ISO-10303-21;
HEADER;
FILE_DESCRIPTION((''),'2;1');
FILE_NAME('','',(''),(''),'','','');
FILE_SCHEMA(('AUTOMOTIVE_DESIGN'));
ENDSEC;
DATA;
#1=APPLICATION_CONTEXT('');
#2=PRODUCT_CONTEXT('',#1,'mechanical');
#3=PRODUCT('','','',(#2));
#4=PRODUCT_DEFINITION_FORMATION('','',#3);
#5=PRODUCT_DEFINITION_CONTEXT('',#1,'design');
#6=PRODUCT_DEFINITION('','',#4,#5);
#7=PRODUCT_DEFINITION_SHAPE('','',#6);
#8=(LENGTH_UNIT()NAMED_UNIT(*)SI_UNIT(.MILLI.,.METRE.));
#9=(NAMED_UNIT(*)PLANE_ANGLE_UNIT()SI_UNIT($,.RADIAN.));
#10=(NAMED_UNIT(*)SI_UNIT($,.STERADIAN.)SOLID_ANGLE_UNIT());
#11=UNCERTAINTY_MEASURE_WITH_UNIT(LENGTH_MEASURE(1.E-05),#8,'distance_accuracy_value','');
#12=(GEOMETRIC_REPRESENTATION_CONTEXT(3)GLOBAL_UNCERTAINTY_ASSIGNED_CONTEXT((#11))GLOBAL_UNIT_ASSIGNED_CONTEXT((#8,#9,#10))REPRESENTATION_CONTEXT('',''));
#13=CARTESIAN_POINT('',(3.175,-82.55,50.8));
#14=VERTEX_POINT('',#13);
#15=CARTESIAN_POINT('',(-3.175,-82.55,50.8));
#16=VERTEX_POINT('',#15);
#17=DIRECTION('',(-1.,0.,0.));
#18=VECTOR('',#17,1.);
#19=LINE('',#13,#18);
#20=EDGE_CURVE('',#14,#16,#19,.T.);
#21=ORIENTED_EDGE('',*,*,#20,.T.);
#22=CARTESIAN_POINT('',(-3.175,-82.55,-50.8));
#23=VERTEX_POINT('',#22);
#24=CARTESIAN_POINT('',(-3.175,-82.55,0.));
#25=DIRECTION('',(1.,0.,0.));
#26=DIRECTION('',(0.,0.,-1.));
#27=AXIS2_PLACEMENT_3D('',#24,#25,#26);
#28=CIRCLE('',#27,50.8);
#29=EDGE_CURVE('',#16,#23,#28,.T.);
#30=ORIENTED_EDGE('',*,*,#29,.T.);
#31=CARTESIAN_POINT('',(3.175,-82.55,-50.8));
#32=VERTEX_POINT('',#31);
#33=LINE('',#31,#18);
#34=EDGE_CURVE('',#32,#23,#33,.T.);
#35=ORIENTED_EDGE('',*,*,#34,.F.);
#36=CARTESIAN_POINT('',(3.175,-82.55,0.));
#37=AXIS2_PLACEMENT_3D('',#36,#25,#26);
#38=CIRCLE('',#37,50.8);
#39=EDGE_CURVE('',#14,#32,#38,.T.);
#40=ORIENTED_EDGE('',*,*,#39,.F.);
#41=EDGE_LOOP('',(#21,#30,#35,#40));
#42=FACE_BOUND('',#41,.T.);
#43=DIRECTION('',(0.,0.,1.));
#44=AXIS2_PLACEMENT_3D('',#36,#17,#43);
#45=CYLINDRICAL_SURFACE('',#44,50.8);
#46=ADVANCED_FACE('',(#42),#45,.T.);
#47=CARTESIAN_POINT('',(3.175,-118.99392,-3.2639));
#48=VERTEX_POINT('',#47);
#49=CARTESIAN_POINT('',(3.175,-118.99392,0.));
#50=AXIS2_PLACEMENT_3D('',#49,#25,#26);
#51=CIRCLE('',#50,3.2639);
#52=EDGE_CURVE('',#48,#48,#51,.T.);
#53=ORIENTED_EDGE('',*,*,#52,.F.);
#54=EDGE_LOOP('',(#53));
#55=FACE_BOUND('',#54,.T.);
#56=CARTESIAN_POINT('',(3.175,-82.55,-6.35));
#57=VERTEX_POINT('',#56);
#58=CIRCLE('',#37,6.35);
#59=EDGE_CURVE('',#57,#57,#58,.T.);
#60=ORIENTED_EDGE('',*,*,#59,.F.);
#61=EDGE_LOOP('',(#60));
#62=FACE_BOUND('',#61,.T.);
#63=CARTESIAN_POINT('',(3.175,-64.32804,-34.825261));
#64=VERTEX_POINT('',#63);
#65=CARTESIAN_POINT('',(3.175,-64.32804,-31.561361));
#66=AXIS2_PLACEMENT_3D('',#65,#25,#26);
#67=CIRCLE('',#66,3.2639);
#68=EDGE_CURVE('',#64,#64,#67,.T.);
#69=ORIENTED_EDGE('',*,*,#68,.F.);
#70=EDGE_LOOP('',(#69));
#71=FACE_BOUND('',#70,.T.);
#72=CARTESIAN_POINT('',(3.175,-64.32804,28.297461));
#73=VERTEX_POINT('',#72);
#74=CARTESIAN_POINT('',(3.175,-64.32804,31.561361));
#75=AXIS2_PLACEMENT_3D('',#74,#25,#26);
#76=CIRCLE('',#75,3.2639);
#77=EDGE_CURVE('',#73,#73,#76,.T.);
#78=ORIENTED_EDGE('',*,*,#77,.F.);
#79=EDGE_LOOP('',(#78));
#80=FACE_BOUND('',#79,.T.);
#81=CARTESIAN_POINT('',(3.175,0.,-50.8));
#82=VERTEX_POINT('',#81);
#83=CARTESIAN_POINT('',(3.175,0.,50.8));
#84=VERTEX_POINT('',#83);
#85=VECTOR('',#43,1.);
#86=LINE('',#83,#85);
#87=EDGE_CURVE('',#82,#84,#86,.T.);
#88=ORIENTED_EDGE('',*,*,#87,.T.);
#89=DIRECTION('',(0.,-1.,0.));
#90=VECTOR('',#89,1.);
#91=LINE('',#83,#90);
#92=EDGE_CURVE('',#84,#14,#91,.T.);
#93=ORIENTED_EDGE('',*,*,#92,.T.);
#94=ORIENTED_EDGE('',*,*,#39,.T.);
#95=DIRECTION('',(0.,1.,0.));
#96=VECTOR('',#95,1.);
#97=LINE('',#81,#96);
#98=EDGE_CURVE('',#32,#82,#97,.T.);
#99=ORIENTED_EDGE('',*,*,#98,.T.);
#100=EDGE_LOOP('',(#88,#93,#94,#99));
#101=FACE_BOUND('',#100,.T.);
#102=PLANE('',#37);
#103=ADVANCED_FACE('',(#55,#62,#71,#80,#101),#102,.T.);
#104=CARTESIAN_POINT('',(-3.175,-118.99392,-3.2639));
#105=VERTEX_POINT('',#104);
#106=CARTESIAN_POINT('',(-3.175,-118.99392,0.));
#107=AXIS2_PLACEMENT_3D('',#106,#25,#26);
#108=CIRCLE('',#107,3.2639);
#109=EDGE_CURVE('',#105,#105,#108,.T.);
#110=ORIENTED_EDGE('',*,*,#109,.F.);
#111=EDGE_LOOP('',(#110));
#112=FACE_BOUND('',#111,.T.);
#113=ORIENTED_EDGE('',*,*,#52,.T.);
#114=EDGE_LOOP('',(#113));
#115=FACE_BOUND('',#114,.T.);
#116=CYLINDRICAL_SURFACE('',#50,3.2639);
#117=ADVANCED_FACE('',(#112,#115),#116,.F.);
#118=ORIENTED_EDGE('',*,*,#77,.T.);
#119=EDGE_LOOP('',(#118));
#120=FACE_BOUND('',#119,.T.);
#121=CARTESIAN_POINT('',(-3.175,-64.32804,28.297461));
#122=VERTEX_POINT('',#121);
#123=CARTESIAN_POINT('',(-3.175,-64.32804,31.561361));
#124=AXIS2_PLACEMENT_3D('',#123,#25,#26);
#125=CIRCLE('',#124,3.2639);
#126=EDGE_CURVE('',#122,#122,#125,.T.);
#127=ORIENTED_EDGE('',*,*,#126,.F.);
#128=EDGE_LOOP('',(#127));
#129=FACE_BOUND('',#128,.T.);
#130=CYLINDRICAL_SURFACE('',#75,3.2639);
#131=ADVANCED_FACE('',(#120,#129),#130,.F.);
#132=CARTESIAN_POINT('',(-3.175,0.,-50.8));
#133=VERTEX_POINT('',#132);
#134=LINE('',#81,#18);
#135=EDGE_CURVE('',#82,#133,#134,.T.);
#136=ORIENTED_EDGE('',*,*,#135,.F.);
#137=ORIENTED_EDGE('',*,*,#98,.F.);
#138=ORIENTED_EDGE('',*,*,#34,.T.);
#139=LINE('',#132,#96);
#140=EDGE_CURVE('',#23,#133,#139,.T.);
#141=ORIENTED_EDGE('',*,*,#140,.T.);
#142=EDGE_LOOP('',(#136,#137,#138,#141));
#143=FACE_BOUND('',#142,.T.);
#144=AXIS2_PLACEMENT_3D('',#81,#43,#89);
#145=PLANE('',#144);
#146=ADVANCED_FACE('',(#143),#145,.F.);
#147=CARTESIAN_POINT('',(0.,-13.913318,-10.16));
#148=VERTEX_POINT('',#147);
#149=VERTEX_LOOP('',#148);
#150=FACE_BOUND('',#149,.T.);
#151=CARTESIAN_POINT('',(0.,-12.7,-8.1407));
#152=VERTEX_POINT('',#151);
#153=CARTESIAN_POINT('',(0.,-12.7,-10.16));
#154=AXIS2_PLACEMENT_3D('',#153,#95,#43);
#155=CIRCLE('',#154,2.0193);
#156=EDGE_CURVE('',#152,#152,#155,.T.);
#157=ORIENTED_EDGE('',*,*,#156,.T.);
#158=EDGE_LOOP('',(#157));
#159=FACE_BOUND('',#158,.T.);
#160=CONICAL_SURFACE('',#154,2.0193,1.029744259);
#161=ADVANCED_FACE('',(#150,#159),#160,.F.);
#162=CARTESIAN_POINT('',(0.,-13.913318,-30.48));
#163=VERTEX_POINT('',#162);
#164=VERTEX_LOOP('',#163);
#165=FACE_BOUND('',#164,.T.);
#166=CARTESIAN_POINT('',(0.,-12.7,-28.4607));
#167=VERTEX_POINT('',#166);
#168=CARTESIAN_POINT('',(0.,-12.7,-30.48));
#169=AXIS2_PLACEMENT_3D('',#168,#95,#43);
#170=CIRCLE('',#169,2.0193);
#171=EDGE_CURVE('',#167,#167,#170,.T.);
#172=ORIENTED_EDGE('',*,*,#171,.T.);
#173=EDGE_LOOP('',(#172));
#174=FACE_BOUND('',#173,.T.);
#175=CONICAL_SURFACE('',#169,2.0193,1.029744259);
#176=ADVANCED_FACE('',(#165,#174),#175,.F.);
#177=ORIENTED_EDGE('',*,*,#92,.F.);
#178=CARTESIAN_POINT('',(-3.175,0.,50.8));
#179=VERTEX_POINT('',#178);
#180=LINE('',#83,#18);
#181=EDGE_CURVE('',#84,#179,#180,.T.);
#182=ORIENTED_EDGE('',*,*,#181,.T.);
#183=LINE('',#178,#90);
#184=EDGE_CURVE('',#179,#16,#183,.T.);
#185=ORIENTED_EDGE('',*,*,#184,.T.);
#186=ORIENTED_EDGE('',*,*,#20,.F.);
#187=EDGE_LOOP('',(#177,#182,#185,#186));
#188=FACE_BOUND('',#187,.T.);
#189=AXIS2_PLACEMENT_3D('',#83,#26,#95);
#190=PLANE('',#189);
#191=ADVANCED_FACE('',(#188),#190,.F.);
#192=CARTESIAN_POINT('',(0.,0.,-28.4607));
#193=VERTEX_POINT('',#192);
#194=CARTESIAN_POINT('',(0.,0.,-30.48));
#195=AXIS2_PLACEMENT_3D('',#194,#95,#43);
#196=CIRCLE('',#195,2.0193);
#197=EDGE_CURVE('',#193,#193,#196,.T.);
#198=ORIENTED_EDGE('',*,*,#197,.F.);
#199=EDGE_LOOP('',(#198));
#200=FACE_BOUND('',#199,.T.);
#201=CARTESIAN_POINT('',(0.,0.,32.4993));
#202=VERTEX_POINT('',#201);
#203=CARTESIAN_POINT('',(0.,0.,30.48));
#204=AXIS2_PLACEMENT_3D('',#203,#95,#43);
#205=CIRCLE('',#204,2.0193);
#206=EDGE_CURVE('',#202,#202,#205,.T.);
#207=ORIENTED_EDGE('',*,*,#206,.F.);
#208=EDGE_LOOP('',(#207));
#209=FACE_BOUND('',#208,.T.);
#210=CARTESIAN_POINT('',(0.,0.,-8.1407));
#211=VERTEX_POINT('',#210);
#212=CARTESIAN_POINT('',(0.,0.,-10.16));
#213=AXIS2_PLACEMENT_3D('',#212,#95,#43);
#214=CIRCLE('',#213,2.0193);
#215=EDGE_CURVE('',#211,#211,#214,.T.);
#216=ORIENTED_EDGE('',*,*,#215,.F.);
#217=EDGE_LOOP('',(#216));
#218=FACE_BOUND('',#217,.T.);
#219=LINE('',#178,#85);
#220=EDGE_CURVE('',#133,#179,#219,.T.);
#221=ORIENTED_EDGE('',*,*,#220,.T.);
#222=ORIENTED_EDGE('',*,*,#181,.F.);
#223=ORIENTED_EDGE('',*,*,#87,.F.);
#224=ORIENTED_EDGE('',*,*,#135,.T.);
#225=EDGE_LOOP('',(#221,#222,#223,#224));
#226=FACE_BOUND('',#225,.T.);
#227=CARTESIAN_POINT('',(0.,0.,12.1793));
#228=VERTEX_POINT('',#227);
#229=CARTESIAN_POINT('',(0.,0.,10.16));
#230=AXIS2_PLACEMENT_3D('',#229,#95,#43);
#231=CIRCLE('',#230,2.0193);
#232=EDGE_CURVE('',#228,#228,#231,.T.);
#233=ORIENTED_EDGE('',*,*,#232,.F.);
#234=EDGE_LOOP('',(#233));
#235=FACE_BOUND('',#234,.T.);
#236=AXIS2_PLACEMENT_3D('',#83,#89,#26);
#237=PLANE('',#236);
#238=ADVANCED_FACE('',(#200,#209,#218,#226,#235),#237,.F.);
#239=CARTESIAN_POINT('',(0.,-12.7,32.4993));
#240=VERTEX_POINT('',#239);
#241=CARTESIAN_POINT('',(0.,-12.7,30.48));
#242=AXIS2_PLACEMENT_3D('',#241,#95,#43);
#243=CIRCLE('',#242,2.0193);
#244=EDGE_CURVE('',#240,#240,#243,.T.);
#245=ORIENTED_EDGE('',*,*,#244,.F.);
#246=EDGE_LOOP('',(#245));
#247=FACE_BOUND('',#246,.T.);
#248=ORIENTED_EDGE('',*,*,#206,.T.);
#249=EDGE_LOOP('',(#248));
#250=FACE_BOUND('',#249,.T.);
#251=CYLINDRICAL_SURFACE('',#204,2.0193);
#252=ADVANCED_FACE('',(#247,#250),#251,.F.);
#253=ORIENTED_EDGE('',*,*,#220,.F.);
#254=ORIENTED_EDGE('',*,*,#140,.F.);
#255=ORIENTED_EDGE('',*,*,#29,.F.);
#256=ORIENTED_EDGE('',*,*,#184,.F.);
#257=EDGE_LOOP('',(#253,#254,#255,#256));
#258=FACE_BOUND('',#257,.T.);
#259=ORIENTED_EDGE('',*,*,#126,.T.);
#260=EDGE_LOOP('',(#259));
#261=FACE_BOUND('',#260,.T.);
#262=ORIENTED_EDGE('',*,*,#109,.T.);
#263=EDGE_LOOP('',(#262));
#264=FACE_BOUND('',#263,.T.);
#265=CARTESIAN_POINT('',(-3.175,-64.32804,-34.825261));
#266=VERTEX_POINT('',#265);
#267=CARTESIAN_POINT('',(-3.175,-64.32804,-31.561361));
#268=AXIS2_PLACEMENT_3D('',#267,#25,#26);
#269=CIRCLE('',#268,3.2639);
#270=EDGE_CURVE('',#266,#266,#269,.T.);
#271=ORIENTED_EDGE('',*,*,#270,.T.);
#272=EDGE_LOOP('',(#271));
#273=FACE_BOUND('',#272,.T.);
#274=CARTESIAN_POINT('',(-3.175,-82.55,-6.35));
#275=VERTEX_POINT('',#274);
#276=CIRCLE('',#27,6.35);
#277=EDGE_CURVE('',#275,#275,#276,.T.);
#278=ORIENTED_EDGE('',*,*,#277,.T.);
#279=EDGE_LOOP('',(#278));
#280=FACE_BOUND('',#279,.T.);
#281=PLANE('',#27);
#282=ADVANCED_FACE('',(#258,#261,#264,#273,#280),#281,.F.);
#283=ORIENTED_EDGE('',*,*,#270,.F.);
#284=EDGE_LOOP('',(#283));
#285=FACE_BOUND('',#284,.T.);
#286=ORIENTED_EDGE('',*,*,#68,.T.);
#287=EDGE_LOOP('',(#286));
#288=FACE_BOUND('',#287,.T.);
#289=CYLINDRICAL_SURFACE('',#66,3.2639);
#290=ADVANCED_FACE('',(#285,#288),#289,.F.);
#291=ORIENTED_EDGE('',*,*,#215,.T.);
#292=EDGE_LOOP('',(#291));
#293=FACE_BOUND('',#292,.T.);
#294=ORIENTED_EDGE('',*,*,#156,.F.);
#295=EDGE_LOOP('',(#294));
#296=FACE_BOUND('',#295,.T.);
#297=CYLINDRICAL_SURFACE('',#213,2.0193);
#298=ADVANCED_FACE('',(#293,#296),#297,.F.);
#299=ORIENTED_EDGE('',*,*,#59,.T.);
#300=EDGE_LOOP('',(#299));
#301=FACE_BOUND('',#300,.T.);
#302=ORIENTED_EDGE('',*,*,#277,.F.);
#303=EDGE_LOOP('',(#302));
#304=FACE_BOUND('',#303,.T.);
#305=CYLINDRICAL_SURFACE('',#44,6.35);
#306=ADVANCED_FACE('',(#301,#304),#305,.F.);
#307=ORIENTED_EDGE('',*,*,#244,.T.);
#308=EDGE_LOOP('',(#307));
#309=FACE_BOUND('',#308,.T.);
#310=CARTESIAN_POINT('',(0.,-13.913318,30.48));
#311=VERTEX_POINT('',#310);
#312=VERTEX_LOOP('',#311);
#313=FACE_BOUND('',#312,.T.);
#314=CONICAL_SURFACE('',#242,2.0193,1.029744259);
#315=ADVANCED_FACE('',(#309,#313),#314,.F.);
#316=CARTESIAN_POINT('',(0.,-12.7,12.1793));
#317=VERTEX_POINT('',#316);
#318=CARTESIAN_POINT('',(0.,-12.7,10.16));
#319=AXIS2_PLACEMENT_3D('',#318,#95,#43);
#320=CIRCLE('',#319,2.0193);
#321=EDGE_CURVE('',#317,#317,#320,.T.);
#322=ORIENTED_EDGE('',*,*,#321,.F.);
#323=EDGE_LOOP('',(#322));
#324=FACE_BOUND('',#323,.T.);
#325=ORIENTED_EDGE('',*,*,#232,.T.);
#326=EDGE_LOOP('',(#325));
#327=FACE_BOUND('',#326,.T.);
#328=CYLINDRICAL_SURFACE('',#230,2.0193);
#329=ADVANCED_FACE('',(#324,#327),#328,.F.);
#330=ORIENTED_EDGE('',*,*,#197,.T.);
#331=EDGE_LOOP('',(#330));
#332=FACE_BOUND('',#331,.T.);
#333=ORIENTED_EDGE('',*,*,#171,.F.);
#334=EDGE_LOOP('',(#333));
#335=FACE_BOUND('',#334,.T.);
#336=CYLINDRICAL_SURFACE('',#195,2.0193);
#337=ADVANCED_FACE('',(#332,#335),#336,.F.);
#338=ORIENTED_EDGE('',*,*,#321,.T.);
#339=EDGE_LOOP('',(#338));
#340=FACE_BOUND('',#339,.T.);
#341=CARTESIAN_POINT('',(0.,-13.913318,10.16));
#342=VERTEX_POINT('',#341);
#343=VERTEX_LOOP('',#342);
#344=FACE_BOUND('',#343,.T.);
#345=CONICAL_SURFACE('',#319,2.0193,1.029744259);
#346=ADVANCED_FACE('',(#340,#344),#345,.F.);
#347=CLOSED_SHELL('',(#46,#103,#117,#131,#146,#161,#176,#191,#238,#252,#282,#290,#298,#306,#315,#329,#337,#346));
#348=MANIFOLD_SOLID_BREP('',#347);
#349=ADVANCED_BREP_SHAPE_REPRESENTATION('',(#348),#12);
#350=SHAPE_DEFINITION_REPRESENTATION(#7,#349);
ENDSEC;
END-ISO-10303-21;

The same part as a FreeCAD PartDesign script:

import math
import FreeCAD as App
import Part
import Sketcher
Q = App.Units.Quantity

doc = App.newDocument("Part")
body = doc.addObject("PartDesign::Body", "Body")

# Sketch on YZ plane
sketch1 = body.newObject("Sketcher::SketchObject", "Sketch")
sketch1.AttachmentSupport = (doc.getObject("YZ_Plane"), [""])
sketch1.MapMode = "FlatFace"
sketch1.addGeometry(Part.LineSegment(App.Vector(0, -50.8, 0), App.Vector(0, 50.8, 0)), False)
sketch1.addGeometry(Part.LineSegment(App.Vector(0, 50.8, 0), App.Vector(-82.55, 50.8, 0)), False)
sketch1.addGeometry(Part.ArcOfCircle(Part.Circle(App.Vector(-82.55, 0, 0), App.Vector(0, 0, 1), 50.8), math.radians(90), math.radians(270)), False)
sketch1.addGeometry(Part.LineSegment(App.Vector(-82.55, -50.8, 0), App.Vector(0, -50.8, 0)), False)
sketch1.addGeometry(Part.Circle(App.Vector(-82.55, 0, 0), App.Vector(0, 0, 1), 6.35), False)
sketch1.addConstraint(Sketcher.Constraint("Coincident", 0, 2, 1, 1))
sketch1.addConstraint(Sketcher.Constraint("Tangent", 1, 2, 2, 1))
sketch1.addConstraint(Sketcher.Constraint("Tangent", 2, 2, 3, 1))
sketch1.addConstraint(Sketcher.Constraint("Coincident", 3, 2, 0, 1))
sketch1.addConstraint(Sketcher.Constraint("Vertical", 0))
sketch1.addConstraint(Sketcher.Constraint("Horizontal", 1))
sketch1.addConstraint(Sketcher.Constraint("Horizontal", 3))
sketch1.addConstraint(Sketcher.Constraint("Coincident", 4, 3, 2, 3))
sketch1.addConstraint(Sketcher.Constraint("Symmetric", 0, 2, 3, 2, -1, 1))
sketch1.addConstraint(Sketcher.Constraint("Radius", 2, Q("2 in")))
sketch1.addConstraint(Sketcher.Constraint("Diameter", 4, Q("0.5 in")))
sketch1.addConstraint(Sketcher.Constraint("DistanceX", 1, 2, 1, 1, Q("3.25 in")))
pad1 = body.newObject("PartDesign::Pad", "Pad")
pad1.Profile = sketch1
pad1.Length = Q("0.25 in")
pad1.Midplane = True

# Sketch on YZ plane
sketch2 = body.newObject("Sketcher::SketchObject", "Sketch001")
sketch2.AttachmentSupport = (doc.getObject("YZ_Plane"), [""])
sketch2.MapMode = "FlatFace"
sketch2.AttachmentOffset = App.Placement(App.Vector(0, 0, 0.125 * 25.4), App.Rotation())
sketch2.addGeometry(Part.Circle(App.Vector(-64.32804, 31.561361, 0), App.Vector(0, 0, 1), 3.2639), False)
sketch2.addGeometry(Part.Circle(App.Vector(-64.32804, -31.561361, 0), App.Vector(0, 0, 1), 3.2639), False)
sketch2.addGeometry(Part.Circle(App.Vector(-118.99392, 0, 0), App.Vector(0, 0, 1), 3.2639), False)
sketch2.addConstraint(Sketcher.Constraint("Equal", 0, 1))
sketch2.addConstraint(Sketcher.Constraint("Equal", 1, 2))
sketch2.addConstraint(Sketcher.Constraint("Symmetric", 0, 3, 1, 3, -1))
sketch2.addConstraint(Sketcher.Constraint("PointOnObject", 2, 3, -1))
sketch2.addConstraint(Sketcher.Constraint("Diameter", 0, Q("0.257 in")))
sketch2.addConstraint(Sketcher.Constraint("DistanceX", 0, 3, -1, 1, Q("2.5326 in")))
sketch2.addConstraint(Sketcher.Constraint("DistanceX", 2, 3, -1, 1, Q("4.6848 in")))
sketch2.addConstraint(Sketcher.Constraint("DistanceY", -1, 1, 0, 3, Q("31.561361 mm")))
doc.recompute()
hole = body.newObject("PartDesign::Hole", "Hole")
hole.Profile = sketch2
hole.ThreadType = "None"
hole.Diameter = Q("0.257 in")
hole.DepthType = "ThroughAll"

# Sketch on XZ plane
sketch3 = body.newObject("Sketcher::SketchObject", "Sketch002")
sketch3.AttachmentSupport = (doc.getObject("XZ_Plane"), [""])
sketch3.MapMode = "FlatFace"
sketch3.addGeometry(Part.Circle(App.Vector(0, -30.48, 0), App.Vector(0, 0, 1), 2.0193), False)
sketch3.addGeometry(Part.Circle(App.Vector(0, -10.16, 0), App.Vector(0, 0, 1), 2.0193), False)
sketch3.addGeometry(Part.Circle(App.Vector(0, 10.16, 0), App.Vector(0, 0, 1), 2.0193), False)
sketch3.addGeometry(Part.Circle(App.Vector(0, 30.48, 0), App.Vector(0, 0, 1), 2.0193), False)
sketch3.addConstraint(Sketcher.Constraint("Equal", 0, 1))
sketch3.addConstraint(Sketcher.Constraint("Equal", 1, 2))
sketch3.addConstraint(Sketcher.Constraint("Equal", 2, 3))
sketch3.addConstraint(Sketcher.Constraint("Symmetric", 1, 3, 2, 3, -1, 1))
sketch3.addConstraint(Sketcher.Constraint("Symmetric", 0, 3, 3, 3, -1, 1))
sketch3.addConstraint(Sketcher.Constraint("PointOnObject", 0, 3, -2))
sketch3.addConstraint(Sketcher.Constraint("PointOnObject", 1, 3, -2))
sketch3.addConstraint(Sketcher.Constraint("Diameter", 0, Q("0.159 in")))
sketch3.addConstraint(Sketcher.Constraint("DistanceY", 0, 3, -1, 1, Q("1.2 in")))
sketch3.addConstraint(Sketcher.Constraint("DistanceY", 1, 3, -1, 1, Q("0.4 in")))
doc.recompute()
hole2 = body.newObject("PartDesign::Hole", "Hole001")
hole2.Profile = sketch3
hole2.ThreadType = "None"
hole2.Diameter = Q("0.159 in")
hole2.DepthType = "Dimension"
hole2.Depth = Q("0.5 in")
hole2.DrillPoint = "Angled"
hole2.DrillPointAngle = 118
hole2.Reversed = True

doc.recompute()
